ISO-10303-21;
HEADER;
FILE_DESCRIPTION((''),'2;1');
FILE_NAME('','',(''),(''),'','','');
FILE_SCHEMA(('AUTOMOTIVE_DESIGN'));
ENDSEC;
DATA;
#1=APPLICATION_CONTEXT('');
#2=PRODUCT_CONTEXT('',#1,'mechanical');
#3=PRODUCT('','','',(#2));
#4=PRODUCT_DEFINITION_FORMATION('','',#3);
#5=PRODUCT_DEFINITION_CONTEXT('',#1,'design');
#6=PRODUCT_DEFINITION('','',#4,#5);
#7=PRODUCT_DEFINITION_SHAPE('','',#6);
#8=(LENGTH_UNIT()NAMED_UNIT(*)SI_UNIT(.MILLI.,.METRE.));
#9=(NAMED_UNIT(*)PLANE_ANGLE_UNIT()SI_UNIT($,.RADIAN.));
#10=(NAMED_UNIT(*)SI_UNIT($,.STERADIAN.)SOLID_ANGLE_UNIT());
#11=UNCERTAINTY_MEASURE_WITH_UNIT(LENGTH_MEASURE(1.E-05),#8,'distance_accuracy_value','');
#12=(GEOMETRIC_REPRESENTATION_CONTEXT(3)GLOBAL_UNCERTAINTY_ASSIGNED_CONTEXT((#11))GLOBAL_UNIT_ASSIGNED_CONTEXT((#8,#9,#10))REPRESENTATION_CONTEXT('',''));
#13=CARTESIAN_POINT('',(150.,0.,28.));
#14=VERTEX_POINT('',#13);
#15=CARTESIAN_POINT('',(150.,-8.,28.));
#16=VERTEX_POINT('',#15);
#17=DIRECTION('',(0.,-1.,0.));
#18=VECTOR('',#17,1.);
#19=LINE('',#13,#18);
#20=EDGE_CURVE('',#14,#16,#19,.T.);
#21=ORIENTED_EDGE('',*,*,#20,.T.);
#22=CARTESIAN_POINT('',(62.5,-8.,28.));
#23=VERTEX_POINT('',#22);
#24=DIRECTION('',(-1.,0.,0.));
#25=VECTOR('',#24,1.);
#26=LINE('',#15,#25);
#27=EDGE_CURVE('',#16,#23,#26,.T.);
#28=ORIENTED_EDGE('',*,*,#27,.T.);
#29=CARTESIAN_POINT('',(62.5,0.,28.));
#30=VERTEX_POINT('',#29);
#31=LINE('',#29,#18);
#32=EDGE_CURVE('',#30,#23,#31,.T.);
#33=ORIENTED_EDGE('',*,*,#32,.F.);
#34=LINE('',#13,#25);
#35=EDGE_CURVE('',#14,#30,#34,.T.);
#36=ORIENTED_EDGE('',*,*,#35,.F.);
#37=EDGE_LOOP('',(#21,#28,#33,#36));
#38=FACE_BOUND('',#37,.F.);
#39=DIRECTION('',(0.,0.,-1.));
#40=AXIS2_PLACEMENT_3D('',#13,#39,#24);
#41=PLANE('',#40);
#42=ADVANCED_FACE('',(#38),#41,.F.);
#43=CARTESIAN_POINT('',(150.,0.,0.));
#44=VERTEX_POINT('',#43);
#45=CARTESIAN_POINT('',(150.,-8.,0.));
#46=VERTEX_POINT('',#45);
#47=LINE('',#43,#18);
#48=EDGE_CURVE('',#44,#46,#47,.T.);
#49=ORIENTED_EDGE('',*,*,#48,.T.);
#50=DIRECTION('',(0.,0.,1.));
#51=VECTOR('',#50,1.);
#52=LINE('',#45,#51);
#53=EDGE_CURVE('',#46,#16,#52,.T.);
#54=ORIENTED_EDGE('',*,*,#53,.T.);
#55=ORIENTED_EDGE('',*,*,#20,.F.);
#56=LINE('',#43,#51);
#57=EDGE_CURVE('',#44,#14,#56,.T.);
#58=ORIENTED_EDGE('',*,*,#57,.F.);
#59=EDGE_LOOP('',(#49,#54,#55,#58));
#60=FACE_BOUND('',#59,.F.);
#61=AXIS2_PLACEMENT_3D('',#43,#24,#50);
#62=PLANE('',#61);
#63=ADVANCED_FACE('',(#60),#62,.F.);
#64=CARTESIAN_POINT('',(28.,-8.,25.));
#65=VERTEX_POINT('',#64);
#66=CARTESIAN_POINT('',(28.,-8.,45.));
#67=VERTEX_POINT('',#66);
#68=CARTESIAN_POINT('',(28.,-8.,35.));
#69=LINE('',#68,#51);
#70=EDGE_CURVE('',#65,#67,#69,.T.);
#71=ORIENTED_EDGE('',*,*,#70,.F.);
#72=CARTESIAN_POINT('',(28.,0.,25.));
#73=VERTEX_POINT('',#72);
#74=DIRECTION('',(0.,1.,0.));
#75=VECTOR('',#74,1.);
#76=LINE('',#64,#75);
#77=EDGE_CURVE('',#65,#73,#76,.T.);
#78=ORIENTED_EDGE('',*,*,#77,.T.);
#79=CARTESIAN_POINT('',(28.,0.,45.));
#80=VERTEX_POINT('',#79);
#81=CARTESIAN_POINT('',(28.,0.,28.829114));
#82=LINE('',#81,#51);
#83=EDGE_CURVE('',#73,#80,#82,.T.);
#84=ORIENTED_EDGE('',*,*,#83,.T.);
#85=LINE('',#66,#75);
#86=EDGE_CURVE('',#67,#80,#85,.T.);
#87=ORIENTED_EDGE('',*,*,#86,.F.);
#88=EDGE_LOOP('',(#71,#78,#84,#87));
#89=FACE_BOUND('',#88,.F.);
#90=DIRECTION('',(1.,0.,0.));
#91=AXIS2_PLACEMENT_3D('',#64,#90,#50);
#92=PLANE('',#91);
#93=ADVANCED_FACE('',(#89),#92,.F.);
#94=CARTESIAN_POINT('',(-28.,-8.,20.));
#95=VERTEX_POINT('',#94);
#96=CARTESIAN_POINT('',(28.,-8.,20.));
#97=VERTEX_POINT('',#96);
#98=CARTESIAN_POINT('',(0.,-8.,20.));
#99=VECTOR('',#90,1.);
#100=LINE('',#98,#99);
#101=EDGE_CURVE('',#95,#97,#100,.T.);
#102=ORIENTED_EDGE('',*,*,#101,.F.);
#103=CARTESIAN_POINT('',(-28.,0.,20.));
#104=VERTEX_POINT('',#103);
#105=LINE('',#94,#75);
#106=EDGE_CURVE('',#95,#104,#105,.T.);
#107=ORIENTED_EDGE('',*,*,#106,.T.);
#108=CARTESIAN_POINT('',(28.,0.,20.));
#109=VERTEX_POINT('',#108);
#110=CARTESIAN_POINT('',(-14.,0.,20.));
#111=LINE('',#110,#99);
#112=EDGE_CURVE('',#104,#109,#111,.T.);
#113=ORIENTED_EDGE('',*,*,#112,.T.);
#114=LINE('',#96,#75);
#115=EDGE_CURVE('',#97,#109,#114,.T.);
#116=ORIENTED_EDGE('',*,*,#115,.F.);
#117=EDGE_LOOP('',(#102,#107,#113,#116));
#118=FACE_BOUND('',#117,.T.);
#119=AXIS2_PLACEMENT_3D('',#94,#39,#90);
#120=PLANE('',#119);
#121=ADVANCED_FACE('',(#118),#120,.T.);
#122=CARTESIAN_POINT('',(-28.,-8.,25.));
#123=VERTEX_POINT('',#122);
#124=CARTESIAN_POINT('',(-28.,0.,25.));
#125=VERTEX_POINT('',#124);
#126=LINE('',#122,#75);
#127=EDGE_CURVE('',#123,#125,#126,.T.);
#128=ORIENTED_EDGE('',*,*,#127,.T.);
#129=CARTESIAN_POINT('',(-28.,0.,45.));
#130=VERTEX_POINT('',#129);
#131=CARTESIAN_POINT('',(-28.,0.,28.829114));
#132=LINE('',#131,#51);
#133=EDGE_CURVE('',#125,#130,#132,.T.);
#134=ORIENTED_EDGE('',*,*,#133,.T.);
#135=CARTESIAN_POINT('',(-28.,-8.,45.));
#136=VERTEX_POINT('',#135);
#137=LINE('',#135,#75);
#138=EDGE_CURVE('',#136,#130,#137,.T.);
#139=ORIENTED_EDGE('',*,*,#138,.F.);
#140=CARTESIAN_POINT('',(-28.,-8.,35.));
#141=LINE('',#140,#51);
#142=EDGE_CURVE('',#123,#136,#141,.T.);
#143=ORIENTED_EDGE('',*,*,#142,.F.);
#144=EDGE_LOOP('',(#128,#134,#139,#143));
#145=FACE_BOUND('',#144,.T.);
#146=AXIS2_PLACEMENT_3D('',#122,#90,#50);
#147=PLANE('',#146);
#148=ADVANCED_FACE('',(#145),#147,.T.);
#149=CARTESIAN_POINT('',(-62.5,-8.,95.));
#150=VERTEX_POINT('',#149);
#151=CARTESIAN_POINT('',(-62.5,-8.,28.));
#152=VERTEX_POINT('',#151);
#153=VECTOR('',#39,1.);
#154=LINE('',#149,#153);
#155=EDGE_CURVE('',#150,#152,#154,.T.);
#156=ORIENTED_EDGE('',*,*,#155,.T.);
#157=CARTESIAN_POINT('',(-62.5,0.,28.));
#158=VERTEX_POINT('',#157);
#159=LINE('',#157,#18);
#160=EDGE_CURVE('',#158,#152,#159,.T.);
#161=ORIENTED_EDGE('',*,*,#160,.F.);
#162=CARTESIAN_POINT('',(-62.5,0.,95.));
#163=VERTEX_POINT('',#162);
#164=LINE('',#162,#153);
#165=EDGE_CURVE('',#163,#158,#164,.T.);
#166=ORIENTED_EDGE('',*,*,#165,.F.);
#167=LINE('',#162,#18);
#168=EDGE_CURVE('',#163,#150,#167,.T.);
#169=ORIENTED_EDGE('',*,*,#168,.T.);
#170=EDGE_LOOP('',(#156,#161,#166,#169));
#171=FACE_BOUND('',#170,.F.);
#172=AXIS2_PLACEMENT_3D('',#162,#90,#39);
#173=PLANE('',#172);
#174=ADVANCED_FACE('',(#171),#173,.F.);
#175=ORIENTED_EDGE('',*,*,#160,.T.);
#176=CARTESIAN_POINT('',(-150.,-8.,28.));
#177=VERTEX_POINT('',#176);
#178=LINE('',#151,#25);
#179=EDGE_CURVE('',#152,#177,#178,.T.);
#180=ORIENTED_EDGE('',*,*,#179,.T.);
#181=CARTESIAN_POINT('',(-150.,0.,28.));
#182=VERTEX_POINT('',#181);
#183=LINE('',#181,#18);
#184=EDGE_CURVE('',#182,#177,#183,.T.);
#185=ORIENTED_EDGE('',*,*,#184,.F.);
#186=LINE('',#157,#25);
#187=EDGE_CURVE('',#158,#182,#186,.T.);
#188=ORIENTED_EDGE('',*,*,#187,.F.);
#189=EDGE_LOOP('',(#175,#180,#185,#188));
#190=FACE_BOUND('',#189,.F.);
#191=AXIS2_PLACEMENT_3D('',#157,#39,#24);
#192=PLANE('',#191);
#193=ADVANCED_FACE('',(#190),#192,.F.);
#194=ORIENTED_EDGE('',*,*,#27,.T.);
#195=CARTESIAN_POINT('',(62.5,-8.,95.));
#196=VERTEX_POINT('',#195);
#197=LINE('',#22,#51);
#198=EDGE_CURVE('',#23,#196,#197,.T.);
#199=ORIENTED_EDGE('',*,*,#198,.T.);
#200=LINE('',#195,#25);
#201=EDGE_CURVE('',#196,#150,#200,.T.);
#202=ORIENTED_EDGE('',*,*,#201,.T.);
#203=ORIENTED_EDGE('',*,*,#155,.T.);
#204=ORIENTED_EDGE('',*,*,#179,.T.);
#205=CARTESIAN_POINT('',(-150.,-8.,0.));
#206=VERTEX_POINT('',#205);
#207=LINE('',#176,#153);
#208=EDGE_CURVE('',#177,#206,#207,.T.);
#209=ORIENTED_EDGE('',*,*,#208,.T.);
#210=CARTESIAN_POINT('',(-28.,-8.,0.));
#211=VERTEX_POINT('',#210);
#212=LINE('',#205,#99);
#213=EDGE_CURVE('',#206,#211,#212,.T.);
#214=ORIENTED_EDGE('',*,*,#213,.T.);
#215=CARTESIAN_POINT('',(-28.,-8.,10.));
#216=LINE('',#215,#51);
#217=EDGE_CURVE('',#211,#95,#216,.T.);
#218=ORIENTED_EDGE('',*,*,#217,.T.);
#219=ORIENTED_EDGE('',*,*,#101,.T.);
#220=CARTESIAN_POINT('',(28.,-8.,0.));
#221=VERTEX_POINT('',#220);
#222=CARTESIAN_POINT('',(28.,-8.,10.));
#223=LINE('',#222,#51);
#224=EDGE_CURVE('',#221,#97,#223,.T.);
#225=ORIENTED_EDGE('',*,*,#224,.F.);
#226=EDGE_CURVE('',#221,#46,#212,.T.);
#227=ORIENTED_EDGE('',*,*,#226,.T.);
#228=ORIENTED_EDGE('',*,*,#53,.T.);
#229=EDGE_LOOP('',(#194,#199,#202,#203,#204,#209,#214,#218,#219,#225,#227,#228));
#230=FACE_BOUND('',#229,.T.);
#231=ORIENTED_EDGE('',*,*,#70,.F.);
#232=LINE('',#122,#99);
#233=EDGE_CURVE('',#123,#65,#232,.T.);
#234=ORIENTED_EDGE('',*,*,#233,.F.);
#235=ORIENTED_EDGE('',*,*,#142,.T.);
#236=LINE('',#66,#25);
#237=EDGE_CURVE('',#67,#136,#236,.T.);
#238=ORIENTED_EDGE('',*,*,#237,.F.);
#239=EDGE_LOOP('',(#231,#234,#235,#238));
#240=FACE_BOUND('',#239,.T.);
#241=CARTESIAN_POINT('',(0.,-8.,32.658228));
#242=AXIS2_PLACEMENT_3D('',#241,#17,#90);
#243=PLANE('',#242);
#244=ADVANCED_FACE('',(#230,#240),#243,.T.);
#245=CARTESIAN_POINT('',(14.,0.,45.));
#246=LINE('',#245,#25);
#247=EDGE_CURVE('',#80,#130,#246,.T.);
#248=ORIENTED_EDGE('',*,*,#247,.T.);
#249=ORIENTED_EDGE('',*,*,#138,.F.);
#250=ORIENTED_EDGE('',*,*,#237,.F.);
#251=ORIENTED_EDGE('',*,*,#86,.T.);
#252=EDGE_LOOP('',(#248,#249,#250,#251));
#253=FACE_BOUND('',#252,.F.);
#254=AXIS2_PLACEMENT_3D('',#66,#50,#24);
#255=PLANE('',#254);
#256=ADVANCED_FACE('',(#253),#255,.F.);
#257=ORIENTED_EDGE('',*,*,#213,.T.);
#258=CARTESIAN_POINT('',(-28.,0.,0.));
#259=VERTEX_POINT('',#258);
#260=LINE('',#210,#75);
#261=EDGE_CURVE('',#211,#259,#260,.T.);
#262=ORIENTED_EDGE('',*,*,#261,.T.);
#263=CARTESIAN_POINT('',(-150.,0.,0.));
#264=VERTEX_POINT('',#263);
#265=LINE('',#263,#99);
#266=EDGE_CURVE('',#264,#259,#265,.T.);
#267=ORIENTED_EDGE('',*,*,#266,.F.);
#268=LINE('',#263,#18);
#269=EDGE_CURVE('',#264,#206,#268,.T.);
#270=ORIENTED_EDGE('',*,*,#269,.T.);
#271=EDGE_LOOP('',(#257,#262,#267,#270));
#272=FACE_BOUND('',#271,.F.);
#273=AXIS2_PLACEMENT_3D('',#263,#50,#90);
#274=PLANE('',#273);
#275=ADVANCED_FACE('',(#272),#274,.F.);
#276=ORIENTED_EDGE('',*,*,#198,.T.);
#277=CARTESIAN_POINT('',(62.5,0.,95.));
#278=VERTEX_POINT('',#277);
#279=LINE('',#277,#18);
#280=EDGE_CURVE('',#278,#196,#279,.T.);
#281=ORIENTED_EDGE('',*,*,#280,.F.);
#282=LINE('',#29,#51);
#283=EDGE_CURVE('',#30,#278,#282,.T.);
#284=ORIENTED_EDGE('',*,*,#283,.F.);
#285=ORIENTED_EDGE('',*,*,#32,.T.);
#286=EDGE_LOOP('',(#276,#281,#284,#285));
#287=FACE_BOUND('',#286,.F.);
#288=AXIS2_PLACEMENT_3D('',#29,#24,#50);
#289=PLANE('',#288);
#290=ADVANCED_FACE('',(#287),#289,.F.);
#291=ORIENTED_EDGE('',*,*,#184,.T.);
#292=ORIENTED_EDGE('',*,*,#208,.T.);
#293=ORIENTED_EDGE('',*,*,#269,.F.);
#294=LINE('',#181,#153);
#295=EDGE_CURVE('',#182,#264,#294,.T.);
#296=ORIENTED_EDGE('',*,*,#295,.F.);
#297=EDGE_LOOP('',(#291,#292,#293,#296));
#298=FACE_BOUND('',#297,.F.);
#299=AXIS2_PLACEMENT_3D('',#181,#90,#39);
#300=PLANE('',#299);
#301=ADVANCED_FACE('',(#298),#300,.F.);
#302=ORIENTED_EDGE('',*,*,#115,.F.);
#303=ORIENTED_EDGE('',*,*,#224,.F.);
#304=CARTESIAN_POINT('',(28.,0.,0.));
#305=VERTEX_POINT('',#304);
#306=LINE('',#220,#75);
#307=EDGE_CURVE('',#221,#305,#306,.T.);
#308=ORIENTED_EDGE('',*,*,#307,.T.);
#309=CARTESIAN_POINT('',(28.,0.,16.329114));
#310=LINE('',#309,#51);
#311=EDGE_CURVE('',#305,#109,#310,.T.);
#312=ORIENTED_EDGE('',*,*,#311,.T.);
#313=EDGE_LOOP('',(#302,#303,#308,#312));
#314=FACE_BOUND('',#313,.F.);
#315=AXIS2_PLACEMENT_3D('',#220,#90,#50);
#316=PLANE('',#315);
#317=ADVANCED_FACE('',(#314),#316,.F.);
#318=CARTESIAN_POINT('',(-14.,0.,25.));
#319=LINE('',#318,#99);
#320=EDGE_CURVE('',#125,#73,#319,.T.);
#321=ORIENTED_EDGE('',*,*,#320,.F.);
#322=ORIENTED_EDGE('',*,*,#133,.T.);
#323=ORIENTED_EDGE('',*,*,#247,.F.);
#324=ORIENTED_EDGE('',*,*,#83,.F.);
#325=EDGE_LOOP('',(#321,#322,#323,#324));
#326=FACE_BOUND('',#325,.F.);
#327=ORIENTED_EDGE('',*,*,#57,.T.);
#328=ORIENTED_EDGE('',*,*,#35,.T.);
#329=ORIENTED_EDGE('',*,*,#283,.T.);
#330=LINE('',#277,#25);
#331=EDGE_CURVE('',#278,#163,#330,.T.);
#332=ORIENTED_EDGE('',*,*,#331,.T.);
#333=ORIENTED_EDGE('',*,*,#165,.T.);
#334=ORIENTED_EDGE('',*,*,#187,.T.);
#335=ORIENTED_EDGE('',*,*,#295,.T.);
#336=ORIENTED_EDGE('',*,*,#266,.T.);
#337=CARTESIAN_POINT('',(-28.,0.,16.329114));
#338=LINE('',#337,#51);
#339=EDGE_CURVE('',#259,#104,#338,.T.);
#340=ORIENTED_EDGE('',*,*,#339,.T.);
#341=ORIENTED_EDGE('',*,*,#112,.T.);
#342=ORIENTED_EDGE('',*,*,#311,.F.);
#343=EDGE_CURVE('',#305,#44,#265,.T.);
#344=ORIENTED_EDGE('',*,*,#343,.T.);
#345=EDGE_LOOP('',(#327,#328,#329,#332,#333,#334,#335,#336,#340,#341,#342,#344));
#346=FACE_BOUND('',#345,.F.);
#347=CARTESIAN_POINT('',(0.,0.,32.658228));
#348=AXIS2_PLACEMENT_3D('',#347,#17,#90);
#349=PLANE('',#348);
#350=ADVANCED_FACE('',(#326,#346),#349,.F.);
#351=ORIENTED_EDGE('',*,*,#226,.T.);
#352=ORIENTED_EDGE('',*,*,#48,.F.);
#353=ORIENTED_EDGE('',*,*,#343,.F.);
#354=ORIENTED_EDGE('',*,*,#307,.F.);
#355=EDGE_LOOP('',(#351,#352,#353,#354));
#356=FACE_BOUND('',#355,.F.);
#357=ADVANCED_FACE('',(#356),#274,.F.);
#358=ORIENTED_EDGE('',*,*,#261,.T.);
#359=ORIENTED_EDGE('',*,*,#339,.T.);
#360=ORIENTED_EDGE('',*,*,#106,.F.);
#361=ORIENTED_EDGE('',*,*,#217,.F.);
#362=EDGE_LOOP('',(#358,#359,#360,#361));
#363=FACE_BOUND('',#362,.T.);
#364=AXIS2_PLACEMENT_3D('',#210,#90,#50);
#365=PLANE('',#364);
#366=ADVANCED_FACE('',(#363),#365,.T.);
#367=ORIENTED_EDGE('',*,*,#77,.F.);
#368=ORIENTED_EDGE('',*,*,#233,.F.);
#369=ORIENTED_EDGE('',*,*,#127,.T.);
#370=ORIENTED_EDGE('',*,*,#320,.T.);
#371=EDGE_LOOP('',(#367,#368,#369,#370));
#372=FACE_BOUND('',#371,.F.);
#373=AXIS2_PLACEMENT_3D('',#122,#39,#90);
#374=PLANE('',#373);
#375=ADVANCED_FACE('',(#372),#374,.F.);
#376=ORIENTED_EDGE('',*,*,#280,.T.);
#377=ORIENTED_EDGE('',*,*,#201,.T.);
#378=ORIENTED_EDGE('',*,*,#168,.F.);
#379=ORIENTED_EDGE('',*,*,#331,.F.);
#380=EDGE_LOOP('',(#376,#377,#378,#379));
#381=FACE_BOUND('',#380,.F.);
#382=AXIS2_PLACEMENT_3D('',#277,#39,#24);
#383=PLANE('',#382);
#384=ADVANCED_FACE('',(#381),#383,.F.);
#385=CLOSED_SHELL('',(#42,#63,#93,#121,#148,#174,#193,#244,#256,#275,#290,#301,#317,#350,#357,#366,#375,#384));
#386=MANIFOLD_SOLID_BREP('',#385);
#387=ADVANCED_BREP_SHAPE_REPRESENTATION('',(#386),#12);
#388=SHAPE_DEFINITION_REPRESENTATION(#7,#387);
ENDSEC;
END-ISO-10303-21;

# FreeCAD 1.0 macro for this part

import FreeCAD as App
import Part
import Sketcher
Q = App.Units.Quantity

doc = App.newDocument("Part")
body = doc.addObject("PartDesign::Body", "Body")

# Sketch on XZ plane
sketch1 = body.newObject("Sketcher::SketchObject", "Sketch")
sketch1.AttachmentSupport = (doc.getObject("XZ_Plane"), [""])
sketch1.MapMode = "FlatFace"
sketch1.addGeometry([
    Part.LineSegment(App.Vector(-150, 0, 0), App.Vector(150, 0, 0)),  # 0
    Part.LineSegment(App.Vector(150, 0, 0), App.Vector(150, 28, 0)),  # 1
    Part.LineSegment(App.Vector(150, 28, 0), App.Vector(62, 28, 0)),  # 2
    Part.LineSegment(App.Vector(62, 28, 0), App.Vector(62, 95, 0)),  # 3
    Part.LineSegment(App.Vector(62, 95, 0), App.Vector(-62, 95, 0)),  # 4
    Part.LineSegment(App.Vector(-62, 95, 0), App.Vector(-62, 28, 0)),  # 5
    Part.LineSegment(App.Vector(-62, 28, 0), App.Vector(-150, 28, 0)),  # 6
    Part.LineSegment(App.Vector(-150, 28, 0), App.Vector(-150, 0, 0)),  # 7
], False)
sketch1.addConstraint([
    Sketcher.Constraint("Coincident", 0, 2, 1, 1),
    Sketcher.Constraint("Coincident", 1, 2, 2, 1),
    Sketcher.Constraint("Coincident", 2, 2, 3, 1),
    Sketcher.Constraint("Coincident", 3, 2, 4, 1),
    Sketcher.Constraint("Coincident", 4, 2, 5, 1),
    Sketcher.Constraint("Coincident", 5, 2, 6, 1),
    Sketcher.Constraint("Coincident", 6, 2, 7, 1),
    Sketcher.Constraint("Coincident", 7, 2, 0, 1),
    Sketcher.Constraint("Horizontal", 0),
    Sketcher.Constraint("Vertical", 1),
    Sketcher.Constraint("Horizontal", 2),
    Sketcher.Constraint("Vertical", 3),
    Sketcher.Constraint("Horizontal", 4),
    Sketcher.Constraint("Vertical", 5),
    Sketcher.Constraint("Horizontal", 6),
    Sketcher.Constraint("Vertical", 7),
    Sketcher.Constraint("Symmetric", 0, 2, 7, 2, -1, 1),
    Sketcher.Constraint("Symmetric", 2, 2, 5, 2, -2),
    Sketcher.Constraint("DistanceX", 0, 1, 0, 2, Q("300 mm")),
    Sketcher.Constraint("DistanceX", 4, 2, 4, 1, Q("125 mm")),
    Sketcher.Constraint("DistanceY", 1, 1, 1, 2, Q("28 mm")),
    Sketcher.Constraint("DistanceY", 3, 1, 3, 2, Q("67 mm")),
])
pad1 = body.newObject("PartDesign::Pad", "Pad")
pad1.Profile = sketch1
pad1.Length = 8

# Sketch on XZ plane
sketch2 = body.newObject("Sketcher::SketchObject", "Sketch001")
sketch2.AttachmentSupport = (doc.getObject("XZ_Plane"), [""])
sketch2.MapMode = "FlatFace"
sketch2.AttachmentOffset = App.Placement(App.Vector(0, 0, 8), App.Rotation())
sketch2.addGeometry([
    Part.LineSegment(App.Vector(-28, 20, 0), App.Vector(-28, 0, 0)),
    Part.LineSegment(App.Vector(-28, 0, 0), App.Vector(28, 0, 0)),
    Part.LineSegment(App.Vector(28, 0, 0), App.Vector(28, 20, 0)),
    Part.LineSegment(App.Vector(28, 20, 0), App.Vector(-28, 20, 0)),
], False)
sketch2.addConstraint([
    Sketcher.Constraint("Coincident", 0, 2, 1, 1),
    Sketcher.Constraint("Coincident", 1, 2, 2, 1),
    Sketcher.Constraint("Coincident", 2, 2, 3, 1),
    Sketcher.Constraint("Coincident", 3, 2, 0, 1),
    Sketcher.Constraint("Vertical", 0),
    Sketcher.Constraint("Horizontal", 1),
    Sketcher.Constraint("Vertical", 2),
    Sketcher.Constraint("Horizontal", 3),
    Sketcher.Constraint("Symmetric", 0, 2, 1, 2, -1, 1),
    Sketcher.Constraint("DistanceX", 1, 1, 1, 2, Q("56 mm")),
    Sketcher.Constraint("DistanceY", 0, 2, 0, 1, Q("20 mm")),
])
pocket1 = body.newObject("PartDesign::Pocket", "Pocket")
pocket1.Profile = sketch2
pocket1.Length = 25

# Sketch on XZ plane
sketch3 = body.newObject("Sketcher::SketchObject", "Sketch002")
sketch3.AttachmentSupport = (doc.getObject("XZ_Plane"), [""])
sketch3.MapMode = "FlatFace"
sketch3.AttachmentOffset = App.Placement(App.Vector(0, 0, 8), App.Rotation())
sketch3.addGeometry([
    Part.LineSegment(App.Vector(-28, 45, 0), App.Vector(-28, 25, 0)),
    Part.LineSegment(App.Vector(-28, 25, 0), App.Vector(28, 25, 0)),
    Part.LineSegment(App.Vector(28, 25, 0), App.Vector(28, 45, 0)),
    Part.LineSegment(App.Vector(28, 45, 0), App.Vector(-28, 45, 0)),
], False)
sketch3.addConstraint([
    Sketcher.Constraint("Coincident", 0, 2, 1, 1),
    Sketcher.Constraint("Coincident", 1, 2, 2, 1),
    Sketcher.Constraint("Coincident", 2, 2, 3, 1),
    Sketcher.Constraint("Coincident", 3, 2, 0, 1),
    Sketcher.Constraint("Vertical", 0),
    Sketcher.Constraint("Horizontal", 1),
    Sketcher.Constraint("Vertical", 2),
    Sketcher.Constraint("Horizontal", 3),
    Sketcher.Constraint("DistanceX", 1, 1, 1, 2, Q("56 mm")),
    Sketcher.Constraint("DistanceY", 0, 2, 0, 1, Q("20 mm")),
    Sketcher.Constraint("DistanceX", 0, 2, -1, 1, Q("28 mm")),
    Sketcher.Constraint("DistanceY", -1, 1, 0, 2, Q("25 mm")),
])
pocket2 = body.newObject("PartDesign::Pocket", "Pocket001")
pocket2.Profile = sketch3
pocket2.Length = 25

doc.recompute()
